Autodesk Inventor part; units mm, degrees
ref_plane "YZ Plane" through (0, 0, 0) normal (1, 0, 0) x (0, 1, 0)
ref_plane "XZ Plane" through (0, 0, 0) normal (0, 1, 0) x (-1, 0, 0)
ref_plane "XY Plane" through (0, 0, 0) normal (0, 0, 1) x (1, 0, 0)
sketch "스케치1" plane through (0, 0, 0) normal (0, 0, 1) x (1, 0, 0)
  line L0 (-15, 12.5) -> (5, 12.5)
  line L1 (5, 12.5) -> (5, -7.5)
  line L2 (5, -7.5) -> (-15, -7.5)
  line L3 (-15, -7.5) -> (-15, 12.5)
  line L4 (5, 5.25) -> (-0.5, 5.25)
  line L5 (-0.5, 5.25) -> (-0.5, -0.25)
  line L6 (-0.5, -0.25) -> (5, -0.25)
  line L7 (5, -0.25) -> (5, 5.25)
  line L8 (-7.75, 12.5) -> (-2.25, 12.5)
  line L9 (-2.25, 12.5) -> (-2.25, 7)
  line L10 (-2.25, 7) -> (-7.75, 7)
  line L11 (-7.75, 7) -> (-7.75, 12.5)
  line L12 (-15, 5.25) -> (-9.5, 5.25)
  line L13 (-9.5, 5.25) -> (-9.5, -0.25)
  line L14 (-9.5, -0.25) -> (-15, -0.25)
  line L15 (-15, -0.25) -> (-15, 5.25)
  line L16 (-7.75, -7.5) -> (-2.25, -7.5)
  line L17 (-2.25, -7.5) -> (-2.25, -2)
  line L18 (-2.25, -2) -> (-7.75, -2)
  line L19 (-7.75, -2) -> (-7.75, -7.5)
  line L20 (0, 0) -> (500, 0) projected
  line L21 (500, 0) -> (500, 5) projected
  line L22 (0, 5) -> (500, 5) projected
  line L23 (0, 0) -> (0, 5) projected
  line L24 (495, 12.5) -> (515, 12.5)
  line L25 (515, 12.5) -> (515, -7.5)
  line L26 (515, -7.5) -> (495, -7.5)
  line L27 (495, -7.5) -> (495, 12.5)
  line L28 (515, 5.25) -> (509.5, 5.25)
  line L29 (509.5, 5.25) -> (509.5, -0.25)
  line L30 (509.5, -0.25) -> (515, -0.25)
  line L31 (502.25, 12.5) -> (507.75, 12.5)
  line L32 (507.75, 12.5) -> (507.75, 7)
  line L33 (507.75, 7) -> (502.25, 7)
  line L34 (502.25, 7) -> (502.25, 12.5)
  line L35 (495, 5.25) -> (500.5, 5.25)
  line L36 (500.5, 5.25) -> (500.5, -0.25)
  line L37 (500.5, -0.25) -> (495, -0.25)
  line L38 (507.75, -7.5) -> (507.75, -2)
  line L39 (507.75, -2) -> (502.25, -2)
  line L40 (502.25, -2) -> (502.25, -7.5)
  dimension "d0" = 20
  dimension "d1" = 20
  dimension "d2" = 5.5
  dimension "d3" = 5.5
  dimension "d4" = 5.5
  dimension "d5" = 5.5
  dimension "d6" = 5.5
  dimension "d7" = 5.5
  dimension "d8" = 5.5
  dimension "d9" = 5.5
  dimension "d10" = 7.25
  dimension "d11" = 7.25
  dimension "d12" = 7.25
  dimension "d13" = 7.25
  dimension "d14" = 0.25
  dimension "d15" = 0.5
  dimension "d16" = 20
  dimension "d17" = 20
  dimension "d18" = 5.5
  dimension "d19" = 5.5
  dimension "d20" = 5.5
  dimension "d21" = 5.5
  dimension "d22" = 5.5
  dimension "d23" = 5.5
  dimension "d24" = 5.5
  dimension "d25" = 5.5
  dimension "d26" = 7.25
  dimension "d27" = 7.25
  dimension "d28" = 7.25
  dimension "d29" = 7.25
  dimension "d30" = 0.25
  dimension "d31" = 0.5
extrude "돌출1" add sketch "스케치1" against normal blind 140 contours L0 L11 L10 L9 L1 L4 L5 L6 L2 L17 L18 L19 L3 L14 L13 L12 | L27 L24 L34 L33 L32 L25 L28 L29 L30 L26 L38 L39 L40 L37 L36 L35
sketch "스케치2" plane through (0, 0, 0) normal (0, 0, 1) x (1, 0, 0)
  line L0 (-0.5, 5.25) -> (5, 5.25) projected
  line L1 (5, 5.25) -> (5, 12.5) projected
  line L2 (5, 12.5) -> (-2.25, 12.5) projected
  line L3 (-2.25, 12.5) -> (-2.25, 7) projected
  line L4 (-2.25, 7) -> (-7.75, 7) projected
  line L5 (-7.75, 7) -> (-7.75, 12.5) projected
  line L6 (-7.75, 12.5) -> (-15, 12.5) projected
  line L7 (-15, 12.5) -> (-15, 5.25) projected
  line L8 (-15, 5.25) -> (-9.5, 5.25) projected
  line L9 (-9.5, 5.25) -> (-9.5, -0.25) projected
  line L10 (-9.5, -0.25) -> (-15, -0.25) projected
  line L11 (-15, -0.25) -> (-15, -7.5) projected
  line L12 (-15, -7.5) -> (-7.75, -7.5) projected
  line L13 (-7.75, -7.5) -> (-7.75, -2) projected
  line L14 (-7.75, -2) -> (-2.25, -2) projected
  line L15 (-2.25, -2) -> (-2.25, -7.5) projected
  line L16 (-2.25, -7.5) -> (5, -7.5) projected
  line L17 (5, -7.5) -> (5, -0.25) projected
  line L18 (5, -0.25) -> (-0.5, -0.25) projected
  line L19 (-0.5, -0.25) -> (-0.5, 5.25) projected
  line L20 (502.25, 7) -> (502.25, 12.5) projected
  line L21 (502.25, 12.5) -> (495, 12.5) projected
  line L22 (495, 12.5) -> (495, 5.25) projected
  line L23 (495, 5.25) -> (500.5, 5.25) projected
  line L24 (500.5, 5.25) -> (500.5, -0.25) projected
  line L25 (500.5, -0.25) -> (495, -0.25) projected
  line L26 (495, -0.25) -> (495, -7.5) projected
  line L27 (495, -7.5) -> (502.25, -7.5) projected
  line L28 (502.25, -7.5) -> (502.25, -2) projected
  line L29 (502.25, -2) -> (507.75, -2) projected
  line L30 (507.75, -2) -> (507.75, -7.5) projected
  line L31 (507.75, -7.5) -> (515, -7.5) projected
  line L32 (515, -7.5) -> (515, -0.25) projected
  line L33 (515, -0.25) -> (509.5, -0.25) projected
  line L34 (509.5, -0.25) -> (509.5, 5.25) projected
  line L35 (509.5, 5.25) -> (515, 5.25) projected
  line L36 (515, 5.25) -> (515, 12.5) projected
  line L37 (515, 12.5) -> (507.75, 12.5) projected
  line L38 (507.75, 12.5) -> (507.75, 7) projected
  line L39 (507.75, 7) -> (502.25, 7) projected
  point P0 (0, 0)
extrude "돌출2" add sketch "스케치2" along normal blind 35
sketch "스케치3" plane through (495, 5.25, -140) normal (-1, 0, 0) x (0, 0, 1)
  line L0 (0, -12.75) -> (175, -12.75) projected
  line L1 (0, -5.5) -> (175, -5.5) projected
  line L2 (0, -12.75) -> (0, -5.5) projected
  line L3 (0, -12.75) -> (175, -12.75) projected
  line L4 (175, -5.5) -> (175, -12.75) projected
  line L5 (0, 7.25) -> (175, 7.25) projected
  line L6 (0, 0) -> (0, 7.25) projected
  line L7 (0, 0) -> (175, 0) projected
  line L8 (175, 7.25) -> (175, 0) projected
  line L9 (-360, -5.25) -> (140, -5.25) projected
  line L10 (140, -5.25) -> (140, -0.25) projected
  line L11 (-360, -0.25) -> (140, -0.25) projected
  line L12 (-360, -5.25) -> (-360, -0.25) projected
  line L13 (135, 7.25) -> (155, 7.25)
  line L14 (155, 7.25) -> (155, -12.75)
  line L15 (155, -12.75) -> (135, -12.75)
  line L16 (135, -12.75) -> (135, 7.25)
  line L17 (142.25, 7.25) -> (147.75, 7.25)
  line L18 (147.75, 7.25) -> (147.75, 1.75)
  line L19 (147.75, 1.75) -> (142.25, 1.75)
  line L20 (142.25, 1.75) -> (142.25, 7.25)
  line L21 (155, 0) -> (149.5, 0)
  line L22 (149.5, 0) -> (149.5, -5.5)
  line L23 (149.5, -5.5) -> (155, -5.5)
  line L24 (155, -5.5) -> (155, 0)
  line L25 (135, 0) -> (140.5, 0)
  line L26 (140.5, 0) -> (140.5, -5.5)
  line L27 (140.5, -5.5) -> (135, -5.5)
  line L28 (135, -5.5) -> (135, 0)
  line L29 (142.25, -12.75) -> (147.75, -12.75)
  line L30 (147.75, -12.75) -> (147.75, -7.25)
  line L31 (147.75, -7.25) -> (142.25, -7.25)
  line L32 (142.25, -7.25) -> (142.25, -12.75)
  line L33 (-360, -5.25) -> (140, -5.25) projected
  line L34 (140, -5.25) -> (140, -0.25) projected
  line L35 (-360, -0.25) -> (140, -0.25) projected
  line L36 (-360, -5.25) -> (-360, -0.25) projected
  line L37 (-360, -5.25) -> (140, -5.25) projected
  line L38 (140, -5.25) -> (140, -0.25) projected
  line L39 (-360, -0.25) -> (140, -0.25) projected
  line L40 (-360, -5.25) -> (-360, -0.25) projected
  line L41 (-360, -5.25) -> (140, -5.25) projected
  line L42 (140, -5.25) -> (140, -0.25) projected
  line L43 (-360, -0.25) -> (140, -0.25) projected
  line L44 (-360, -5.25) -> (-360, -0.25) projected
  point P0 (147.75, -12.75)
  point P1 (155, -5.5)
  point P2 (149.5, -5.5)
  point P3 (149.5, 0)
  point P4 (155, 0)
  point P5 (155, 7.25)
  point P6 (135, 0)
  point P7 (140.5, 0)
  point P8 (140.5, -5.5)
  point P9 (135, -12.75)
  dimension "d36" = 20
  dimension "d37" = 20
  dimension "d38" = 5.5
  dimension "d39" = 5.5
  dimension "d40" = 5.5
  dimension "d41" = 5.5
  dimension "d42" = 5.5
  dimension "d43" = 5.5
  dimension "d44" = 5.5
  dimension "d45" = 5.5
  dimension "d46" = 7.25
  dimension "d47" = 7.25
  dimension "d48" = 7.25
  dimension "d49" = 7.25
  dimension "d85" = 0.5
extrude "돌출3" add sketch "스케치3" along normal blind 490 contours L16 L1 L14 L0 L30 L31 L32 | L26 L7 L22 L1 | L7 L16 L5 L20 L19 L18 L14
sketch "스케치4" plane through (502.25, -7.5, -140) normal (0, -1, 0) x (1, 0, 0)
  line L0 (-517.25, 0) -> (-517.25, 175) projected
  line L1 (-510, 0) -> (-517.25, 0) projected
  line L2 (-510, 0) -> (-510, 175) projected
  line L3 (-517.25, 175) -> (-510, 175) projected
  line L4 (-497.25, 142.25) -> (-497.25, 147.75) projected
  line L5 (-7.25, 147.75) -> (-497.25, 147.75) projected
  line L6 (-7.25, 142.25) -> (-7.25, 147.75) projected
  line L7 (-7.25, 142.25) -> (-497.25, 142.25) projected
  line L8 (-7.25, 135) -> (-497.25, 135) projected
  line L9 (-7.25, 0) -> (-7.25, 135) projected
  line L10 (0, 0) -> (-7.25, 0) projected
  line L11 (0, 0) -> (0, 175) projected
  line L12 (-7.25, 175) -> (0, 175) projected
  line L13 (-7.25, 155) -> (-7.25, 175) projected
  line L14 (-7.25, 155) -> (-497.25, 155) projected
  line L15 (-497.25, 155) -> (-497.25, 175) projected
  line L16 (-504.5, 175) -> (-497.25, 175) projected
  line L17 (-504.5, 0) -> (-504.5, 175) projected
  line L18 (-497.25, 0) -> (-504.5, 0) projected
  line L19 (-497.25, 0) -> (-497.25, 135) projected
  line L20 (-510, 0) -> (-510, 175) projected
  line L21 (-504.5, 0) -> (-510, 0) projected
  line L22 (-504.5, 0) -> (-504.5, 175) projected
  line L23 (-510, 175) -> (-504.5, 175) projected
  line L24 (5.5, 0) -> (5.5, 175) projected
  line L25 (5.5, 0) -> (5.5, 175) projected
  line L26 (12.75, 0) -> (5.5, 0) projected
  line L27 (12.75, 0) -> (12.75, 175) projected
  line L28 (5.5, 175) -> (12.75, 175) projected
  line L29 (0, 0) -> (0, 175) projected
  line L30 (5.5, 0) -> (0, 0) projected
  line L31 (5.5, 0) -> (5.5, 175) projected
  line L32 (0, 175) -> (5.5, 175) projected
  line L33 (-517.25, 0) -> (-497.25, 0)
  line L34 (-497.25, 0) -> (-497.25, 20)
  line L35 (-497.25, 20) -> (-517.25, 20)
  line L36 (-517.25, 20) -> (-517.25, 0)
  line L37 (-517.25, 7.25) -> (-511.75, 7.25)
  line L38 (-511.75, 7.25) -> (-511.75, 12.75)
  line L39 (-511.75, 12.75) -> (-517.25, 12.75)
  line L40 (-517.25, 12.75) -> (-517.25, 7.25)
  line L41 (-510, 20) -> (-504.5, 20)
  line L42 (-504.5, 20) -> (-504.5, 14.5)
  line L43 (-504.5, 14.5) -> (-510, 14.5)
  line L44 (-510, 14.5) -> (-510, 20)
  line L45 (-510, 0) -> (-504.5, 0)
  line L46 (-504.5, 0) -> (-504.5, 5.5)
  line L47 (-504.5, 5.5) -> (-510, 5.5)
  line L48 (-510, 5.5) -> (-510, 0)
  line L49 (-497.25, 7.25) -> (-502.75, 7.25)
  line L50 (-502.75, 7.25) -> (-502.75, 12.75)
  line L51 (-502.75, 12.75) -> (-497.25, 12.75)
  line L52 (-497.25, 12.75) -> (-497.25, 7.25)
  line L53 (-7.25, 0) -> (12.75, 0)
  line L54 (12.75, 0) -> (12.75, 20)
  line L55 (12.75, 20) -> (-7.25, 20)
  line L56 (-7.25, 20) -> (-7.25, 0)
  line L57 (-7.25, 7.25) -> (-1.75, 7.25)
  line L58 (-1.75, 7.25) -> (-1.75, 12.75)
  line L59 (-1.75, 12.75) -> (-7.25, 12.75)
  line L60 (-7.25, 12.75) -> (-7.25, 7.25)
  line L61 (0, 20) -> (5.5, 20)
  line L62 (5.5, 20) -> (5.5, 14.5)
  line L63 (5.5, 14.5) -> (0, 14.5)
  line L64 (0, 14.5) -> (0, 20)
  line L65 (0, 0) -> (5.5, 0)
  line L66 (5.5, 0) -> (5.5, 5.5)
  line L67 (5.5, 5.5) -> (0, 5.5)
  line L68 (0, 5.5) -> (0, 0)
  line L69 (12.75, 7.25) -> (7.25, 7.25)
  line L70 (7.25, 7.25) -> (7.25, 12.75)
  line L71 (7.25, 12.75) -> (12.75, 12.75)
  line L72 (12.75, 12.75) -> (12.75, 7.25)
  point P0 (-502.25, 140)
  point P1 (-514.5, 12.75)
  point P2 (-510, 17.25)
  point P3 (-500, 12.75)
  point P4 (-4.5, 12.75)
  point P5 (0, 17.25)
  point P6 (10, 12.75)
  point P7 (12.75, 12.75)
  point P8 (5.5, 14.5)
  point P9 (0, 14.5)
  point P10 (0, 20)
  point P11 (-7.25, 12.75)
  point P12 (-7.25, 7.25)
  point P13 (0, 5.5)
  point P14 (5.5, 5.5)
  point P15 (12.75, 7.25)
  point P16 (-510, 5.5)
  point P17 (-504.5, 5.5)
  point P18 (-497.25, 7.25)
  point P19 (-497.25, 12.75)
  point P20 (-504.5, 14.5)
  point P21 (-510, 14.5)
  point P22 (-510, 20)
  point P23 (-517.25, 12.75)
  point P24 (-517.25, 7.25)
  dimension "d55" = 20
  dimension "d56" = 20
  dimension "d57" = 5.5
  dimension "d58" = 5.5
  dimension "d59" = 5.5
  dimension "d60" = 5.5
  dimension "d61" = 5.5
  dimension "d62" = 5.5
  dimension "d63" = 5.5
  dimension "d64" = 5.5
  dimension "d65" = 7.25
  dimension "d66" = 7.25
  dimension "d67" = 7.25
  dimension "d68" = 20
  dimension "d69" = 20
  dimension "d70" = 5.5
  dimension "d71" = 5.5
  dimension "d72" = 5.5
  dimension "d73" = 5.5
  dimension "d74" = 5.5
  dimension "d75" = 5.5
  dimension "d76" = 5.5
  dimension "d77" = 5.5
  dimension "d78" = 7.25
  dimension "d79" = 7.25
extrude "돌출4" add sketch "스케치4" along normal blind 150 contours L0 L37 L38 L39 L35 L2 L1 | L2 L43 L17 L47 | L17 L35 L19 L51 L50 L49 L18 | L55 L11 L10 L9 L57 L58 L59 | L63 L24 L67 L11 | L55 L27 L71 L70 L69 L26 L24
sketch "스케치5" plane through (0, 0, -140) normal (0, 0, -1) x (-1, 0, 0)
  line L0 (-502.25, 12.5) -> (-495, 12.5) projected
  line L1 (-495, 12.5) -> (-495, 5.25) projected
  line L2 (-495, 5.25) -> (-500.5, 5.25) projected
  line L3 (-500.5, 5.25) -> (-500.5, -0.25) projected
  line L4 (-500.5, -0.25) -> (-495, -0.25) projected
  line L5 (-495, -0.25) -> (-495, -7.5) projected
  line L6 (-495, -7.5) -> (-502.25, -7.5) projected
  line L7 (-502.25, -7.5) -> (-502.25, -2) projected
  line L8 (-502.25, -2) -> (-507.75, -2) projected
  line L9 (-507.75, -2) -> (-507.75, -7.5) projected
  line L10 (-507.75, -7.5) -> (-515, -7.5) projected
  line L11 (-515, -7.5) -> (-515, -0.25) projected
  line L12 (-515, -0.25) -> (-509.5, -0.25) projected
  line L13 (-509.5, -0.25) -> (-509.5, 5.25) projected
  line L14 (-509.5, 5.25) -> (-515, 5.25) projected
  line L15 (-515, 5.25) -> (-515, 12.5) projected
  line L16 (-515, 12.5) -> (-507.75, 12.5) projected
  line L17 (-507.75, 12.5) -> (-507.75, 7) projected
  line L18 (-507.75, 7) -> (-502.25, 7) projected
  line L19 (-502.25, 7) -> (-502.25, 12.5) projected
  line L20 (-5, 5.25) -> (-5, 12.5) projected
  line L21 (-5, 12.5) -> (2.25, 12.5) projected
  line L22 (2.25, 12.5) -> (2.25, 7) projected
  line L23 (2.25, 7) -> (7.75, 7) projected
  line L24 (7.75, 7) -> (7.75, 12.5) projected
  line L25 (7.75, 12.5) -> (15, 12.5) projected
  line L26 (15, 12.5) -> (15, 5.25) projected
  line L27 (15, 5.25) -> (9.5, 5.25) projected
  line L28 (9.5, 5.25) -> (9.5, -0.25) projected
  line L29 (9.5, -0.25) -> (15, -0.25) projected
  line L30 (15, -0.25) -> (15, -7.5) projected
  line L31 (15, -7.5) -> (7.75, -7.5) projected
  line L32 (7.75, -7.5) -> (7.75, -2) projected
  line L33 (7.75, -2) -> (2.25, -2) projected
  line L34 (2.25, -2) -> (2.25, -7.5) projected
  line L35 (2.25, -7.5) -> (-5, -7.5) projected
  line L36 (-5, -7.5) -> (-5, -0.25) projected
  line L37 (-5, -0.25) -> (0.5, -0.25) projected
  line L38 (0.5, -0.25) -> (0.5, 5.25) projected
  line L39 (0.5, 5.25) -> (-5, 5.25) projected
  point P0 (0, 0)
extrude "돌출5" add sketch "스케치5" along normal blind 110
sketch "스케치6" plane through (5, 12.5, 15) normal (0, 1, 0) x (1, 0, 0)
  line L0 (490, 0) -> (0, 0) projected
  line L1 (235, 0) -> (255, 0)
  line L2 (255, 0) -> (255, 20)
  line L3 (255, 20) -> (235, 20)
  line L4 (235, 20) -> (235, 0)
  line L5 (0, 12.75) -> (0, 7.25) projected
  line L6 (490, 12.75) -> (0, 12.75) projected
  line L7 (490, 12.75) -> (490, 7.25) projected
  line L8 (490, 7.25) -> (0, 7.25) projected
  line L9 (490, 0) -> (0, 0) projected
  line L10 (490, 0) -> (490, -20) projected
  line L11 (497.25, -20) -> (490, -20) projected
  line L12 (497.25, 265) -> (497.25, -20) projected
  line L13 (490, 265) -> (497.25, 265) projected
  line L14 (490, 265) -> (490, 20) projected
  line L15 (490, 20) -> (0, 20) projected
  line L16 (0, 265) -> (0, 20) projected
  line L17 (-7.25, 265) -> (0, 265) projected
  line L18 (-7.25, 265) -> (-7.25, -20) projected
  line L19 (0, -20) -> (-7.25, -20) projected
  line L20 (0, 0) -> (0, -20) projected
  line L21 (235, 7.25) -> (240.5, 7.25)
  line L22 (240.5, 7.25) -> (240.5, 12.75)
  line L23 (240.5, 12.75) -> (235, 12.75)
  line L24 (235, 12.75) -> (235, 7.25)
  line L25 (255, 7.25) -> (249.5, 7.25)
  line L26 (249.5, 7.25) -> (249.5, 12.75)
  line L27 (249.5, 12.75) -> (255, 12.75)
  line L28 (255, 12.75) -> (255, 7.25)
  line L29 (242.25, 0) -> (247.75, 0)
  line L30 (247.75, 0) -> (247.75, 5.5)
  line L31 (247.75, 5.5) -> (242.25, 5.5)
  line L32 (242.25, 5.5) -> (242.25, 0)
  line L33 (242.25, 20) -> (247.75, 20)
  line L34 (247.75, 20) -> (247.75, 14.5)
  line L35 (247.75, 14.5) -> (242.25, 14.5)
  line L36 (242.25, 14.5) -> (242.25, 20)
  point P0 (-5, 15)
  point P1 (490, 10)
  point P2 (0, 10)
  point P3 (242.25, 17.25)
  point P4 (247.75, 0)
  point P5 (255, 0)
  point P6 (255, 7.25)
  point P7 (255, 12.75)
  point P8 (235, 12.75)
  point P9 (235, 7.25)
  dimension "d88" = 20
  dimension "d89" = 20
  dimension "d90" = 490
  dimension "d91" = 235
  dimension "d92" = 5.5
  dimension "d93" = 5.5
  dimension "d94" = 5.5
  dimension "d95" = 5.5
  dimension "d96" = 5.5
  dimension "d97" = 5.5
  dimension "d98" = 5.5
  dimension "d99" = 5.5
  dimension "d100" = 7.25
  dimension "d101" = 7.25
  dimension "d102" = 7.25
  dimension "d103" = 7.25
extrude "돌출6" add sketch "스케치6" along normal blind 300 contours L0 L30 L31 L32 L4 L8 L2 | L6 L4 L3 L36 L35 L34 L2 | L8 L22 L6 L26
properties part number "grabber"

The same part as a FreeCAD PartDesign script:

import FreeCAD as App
import Part
import Sketcher


def add_polygon(sketch, points):
    """Adds a closed chain of lines whose ends are joined by coincident constraints."""
    first, n = sketch.GeometryCount, len(points)
    for a, b in zip(points, points[1:] + points[:1]):
        sketch.addGeometry(Part.LineSegment(App.Vector(*a, 0), App.Vector(*b, 0)), False)
    for i in range(n):
        sketch.addConstraint(Sketcher.Constraint("Coincident", first + i, 2, first + (i + 1) % n, 1))

doc = App.newDocument("Part")
body = doc.addObject("PartDesign::Body", "Body")
body.AllowCompound = True

# Sketch on XY plane
sketch1 = doc.addObject("Sketcher::SketchObject", "Sketch")
body.addObject(sketch1)
sketch1.AttachmentSupport = (doc.XY_Plane, [""])
sketch1.MapMode = "FlatFace"
add_polygon(sketch1, [(-7.75, 12.5), (-15, 12.5), (-15, 5.25), (-9.5, 5.25), (-9.5, -0.25), (-15, -0.25), (-15, -7.5), (-7.75, -7.5), (-7.75, -2), (-2.25, -2), (-2.25, -7.5), (5, -7.5), (5, -0.25), (-0.5, -0.25), (-0.5, 5.25), (5, 5.25), (5, 12.5), (-2.25, 12.5), (-2.25, 7), (-7.75, 7)])  # lines 0-19
add_polygon(sketch1, [(495, 12.5), (495, 5.25), (500.5, 5.25), (500.5, -0.25), (495, -0.25), (495, -7.5), (502.25, -7.5), (502.25, -2), (507.75, -2), (507.75, -7.5), (515, -7.5), (515, -0.25), (509.5, -0.25), (509.5, 5.25), (515, 5.25), (515, 12.5), (507.75, 12.5), (507.75, 7), (502.25, 7), (502.25, 12.5)])  # lines 20-39
sketch1.addConstraint(Sketcher.Constraint("Horizontal", 0))
sketch1.addConstraint(Sketcher.Constraint("Vertical", 1))
sketch1.addConstraint(Sketcher.Constraint("Horizontal", 2))
sketch1.addConstraint(Sketcher.Constraint("Vertical", 3))
sketch1.addConstraint(Sketcher.Constraint("Horizontal", 4))
sketch1.addConstraint(Sketcher.Constraint("Vertical", 5))
sketch1.addConstraint(Sketcher.Constraint("Horizontal", 6))
sketch1.addConstraint(Sketcher.Constraint("Vertical", 7))
sketch1.addConstraint(Sketcher.Constraint("Horizontal", 8))
sketch1.addConstraint(Sketcher.Constraint("Vertical", 9))
sketch1.addConstraint(Sketcher.Constraint("Horizontal", 10))
sketch1.addConstraint(Sketcher.Constraint("Vertical", 11))
sketch1.addConstraint(Sketcher.Constraint("Horizontal", 12))
sketch1.addConstraint(Sketcher.Constraint("Vertical", 13))
sketch1.addConstraint(Sketcher.Constraint("Horizontal", 14))
sketch1.addConstraint(Sketcher.Constraint("Vertical", 15))
sketch1.addConstraint(Sketcher.Constraint("Horizontal", 16))
sketch1.addConstraint(Sketcher.Constraint("Vertical", 17))
sketch1.addConstraint(Sketcher.Constraint("Horizontal", 18))
sketch1.addConstraint(Sketcher.Constraint("Vertical", 19))
sketch1.addConstraint(Sketcher.Constraint("Vertical", 20))
sketch1.addConstraint(Sketcher.Constraint("Horizontal", 21))
sketch1.addConstraint(Sketcher.Constraint("Vertical", 22))
sketch1.addConstraint(Sketcher.Constraint("Horizontal", 23))
sketch1.addConstraint(Sketcher.Constraint("Vertical", 24))
sketch1.addConstraint(Sketcher.Constraint("Horizontal", 25))
sketch1.addConstraint(Sketcher.Constraint("Vertical", 26))
sketch1.addConstraint(Sketcher.Constraint("Horizontal", 27))
sketch1.addConstraint(Sketcher.Constraint("Vertical", 28))
sketch1.addConstraint(Sketcher.Constraint("Horizontal", 29))
sketch1.addConstraint(Sketcher.Constraint("Vertical", 30))
sketch1.addConstraint(Sketcher.Constraint("Horizontal", 31))
sketch1.addConstraint(Sketcher.Constraint("Vertical", 32))
sketch1.addConstraint(Sketcher.Constraint("Horizontal", 33))
sketch1.addConstraint(Sketcher.Constraint("Vertical", 34))
sketch1.addConstraint(Sketcher.Constraint("Horizontal", 35))
sketch1.addConstraint(Sketcher.Constraint("Vertical", 36))
sketch1.addConstraint(Sketcher.Constraint("Horizontal", 37))
sketch1.addConstraint(Sketcher.Constraint("Vertical", 38))
sketch1.addConstraint(Sketcher.Constraint("Horizontal", 39))
sketch1.addConstraint(Sketcher.Constraint("Horizontal", 6, 2, 9, 2))
sketch1.addConstraint(Sketcher.Constraint("Horizontal", 4, 2, 11, 2))
sketch1.addConstraint(Sketcher.Constraint("Horizontal", 2, 2, 13, 2))
sketch1.addConstraint(Sketcher.Constraint("Horizontal", 0, 2, 15, 2))
sketch1.addConstraint(Sketcher.Constraint("Horizontal", 14, 2, 20, 2))
sketch1.addConstraint(Sketcher.Constraint("Horizontal", 12, 2, 22, 2))
sketch1.addConstraint(Sketcher.Constraint("Horizontal", 10, 2, 24, 2))
sketch1.addConstraint(Sketcher.Constraint("Horizontal", 8, 2, 26, 2))
sketch1.addConstraint(Sketcher.Constraint("Horizontal", 25, 2, 28, 2))
sketch1.addConstraint(Sketcher.Constraint("Horizontal", 23, 2, 30, 2))
sketch1.addConstraint(Sketcher.Constraint("Horizontal", 21, 2, 32, 2))
sketch1.addConstraint(Sketcher.Constraint("Horizontal", 19, 2, 34, 2))
sketch1.addConstraint(Sketcher.Constraint("Horizontal", 18, 2, 36, 2))
sketch1.addConstraint(Sketcher.Constraint("Horizontal", 35, 2, 38, 2))
sketch1.addConstraint(Sketcher.Constraint("Vertical", 1, 2, 4, 2))
sketch1.addConstraint(Sketcher.Constraint("Vertical", 11, 2, 14, 2))
sketch1.addConstraint(Sketcher.Constraint("Vertical", 9, 2, 16, 2))
sketch1.addConstraint(Sketcher.Constraint("Vertical", 7, 2, 18, 2))
sketch1.addConstraint(Sketcher.Constraint("Vertical", 20, 2, 23, 2))
sketch1.addConstraint(Sketcher.Constraint("Vertical", 30, 2, 33, 2))
sketch1.addConstraint(Sketcher.Constraint("Vertical", 28, 2, 35, 2))
sketch1.addConstraint(Sketcher.Constraint("Vertical", 26, 2, 37, 2))
sketch1.addConstraint(Sketcher.Constraint("Equal", 4, 8))
sketch1.addConstraint(Sketcher.Constraint("Equal", 6, 10))
sketch1.addConstraint(Sketcher.Constraint("Equal", 8, 12))
sketch1.addConstraint(Sketcher.Constraint("Equal", 18, 21))
sketch1.addConstraint(Sketcher.Constraint("Equal", 16, 25))
sketch1.addConstraint(Sketcher.Constraint("Equal", 23, 27))
sketch1.addConstraint(Sketcher.Constraint("Equal", 25, 29))
sketch1.addConstraint(Sketcher.Constraint("Equal", 27, 31))
sketch1.addConstraint(Sketcher.Constraint("Equal", 39, 1))
sketch1.addConstraint(Sketcher.Constraint("Equal", 37, 3))
sketch1.addConstraint(Sketcher.Constraint("Equal", 1, 5))
sketch1.addConstraint(Sketcher.Constraint("Equal", 3, 7))
sketch1.addConstraint(Sketcher.Constraint("Equal", 13, 17))
sketch1.addConstraint(Sketcher.Constraint("DistanceX", 2, 1, 2, 2, 5.5))
sketch1.addConstraint(Sketcher.Constraint("DistanceY", 5, 2, 0, 2, 20.0))
sketch1.addConstraint(Sketcher.Constraint("DistanceX", 12, 2, -1, 1, 0.5))
sketch1.addConstraint(Sketcher.Constraint("DistanceY", 3, 2, -1, 1, 0.25))
sketch1.addConstraint(Sketcher.Constraint("DistanceX", -1, 1, 20, 2, 495.0))
pad1 = doc.addObject("PartDesign::Pad", "Pad")
body.addObject(pad1)
pad1.Profile = sketch1
pad1.Length = 140
pad1.Reversed = True

# Sketch on XY plane
sketch2 = doc.addObject("Sketcher::SketchObject", "Sketch001")
body.addObject(sketch2)
sketch2.AttachmentSupport = (doc.XY_Plane, [""])
sketch2.MapMode = "FlatFace"
add_polygon(sketch2, [(-0.5, -0.25), (-0.5, 5.25), (5, 5.25), (5, 12.5), (-2.25, 12.5), (-2.25, 7), (-7.75, 7), (-7.75, 12.5), (-15, 12.5), (-15, 5.25), (-9.5, 5.25), (-9.5, -0.25), (-15, -0.25), (-15, -7.5), (-7.75, -7.5), (-7.75, -2), (-2.25, -2), (-2.25, -7.5), (5, -7.5), (5, -0.25)])  # lines 0-19
add_polygon(sketch2, [(507.75, 7), (502.25, 7), (502.25, 12.5), (495, 12.5), (495, 5.25), (500.5, 5.25), (500.5, -0.25), (495, -0.25), (495, -7.5), (502.25, -7.5), (502.25, -2), (507.75, -2), (507.75, -7.5), (515, -7.5), (515, -0.25), (509.5, -0.25), (509.5, 5.25), (515, 5.25), (515, 12.5), (507.75, 12.5)])  # lines 20-39
sketch2.addConstraint(Sketcher.Constraint("Vertical", 0))
sketch2.addConstraint(Sketcher.Constraint("Horizontal", 1))
sketch2.addConstraint(Sketcher.Constraint("Vertical", 2))
sketch2.addConstraint(Sketcher.Constraint("Horizontal", 3))
sketch2.addConstraint(Sketcher.Constraint("Vertical", 4))
sketch2.addConstraint(Sketcher.Constraint("Horizontal", 5))
sketch2.addConstraint(Sketcher.Constraint("Vertical", 6))
sketch2.addConstraint(Sketcher.Constraint("Horizontal", 7))
sketch2.addConstraint(Sketcher.Constraint("Vertical", 8))
sketch2.addConstraint(Sketcher.Constraint("Horizontal", 9))
sketch2.addConstraint(Sketcher.Constraint("Vertical", 10))
sketch2.addConstraint(Sketcher.Constraint("Horizontal", 11))
sketch2.addConstraint(Sketcher.Constraint("Vertical", 12))
sketch2.addConstraint(Sketcher.Constraint("Horizontal", 13))
sketch2.addConstraint(Sketcher.Constraint("Vertical", 14))
sketch2.addConstraint(Sketcher.Constraint("Horizontal", 15))
sketch2.addConstraint(Sketcher.Constraint("Vertical", 16))
sketch2.addConstraint(Sketcher.Constraint("Horizontal", 17))
sketch2.addConstraint(Sketcher.Constraint("Vertical", 18))
sketch2.addConstraint(Sketcher.Constraint("Horizontal", 19))
sketch2.addConstraint(Sketcher.Constraint("Horizontal", 20))
sketch2.addConstraint(Sketcher.Constraint("Vertical", 21))
sketch2.addConstraint(Sketcher.Constraint("Horizontal", 22))
sketch2.addConstraint(Sketcher.Constraint("Vertical", 23))
sketch2.addConstraint(Sketcher.Constraint("Horizontal", 24))
sketch2.addConstraint(Sketcher.Constraint("Vertical", 25))
sketch2.addConstraint(Sketcher.Constraint("Horizontal", 26))
sketch2.addConstraint(Sketcher.Constraint("Vertical", 27))
sketch2.addConstraint(Sketcher.Constraint("Horizontal", 28))
sketch2.addConstraint(Sketcher.Constraint("Vertical", 29))
sketch2.addConstraint(Sketcher.Constraint("Horizontal", 30))
sketch2.addConstraint(Sketcher.Constraint("Vertical", 31))
sketch2.addConstraint(Sketcher.Constraint("Horizontal", 32))
sketch2.addConstraint(Sketcher.Constraint("Vertical", 33))
sketch2.addConstraint(Sketcher.Constraint("Horizontal", 34))
sketch2.addConstraint(Sketcher.Constraint("Vertical", 35))
sketch2.addConstraint(Sketcher.Constraint("Horizontal", 36))
sketch2.addConstraint(Sketcher.Constraint("Vertical", 37))
sketch2.addConstraint(Sketcher.Constraint("Horizontal", 38))
sketch2.addConstraint(Sketcher.Constraint("Vertical", 39))
sketch2.addConstraint(Sketcher.Constraint("Horizontal", 3, 2, 6, 2))
sketch2.addConstraint(Sketcher.Constraint("Horizontal", 1, 2, 8, 2))
sketch2.addConstraint(Sketcher.Constraint("Horizontal", 13, 2, 16, 2))
sketch2.addConstraint(Sketcher.Constraint("Horizontal", 11, 2, 18, 2))
sketch2.addConstraint(Sketcher.Constraint("Horizontal", 5, 2, 20, 2))
sketch2.addConstraint(Sketcher.Constraint("Horizontal", 7, 2, 21, 2))
sketch2.addConstraint(Sketcher.Constraint("Horizontal", 9, 2, 23, 2))
sketch2.addConstraint(Sketcher.Constraint("Horizontal", 19, 2, 25, 2))
sketch2.addConstraint(Sketcher.Constraint("Horizontal", 17, 2, 27, 2))
sketch2.addConstraint(Sketcher.Constraint("Horizontal", 15, 2, 29, 2))
sketch2.addConstraint(Sketcher.Constraint("Horizontal", 28, 2, 31, 2))
sketch2.addConstraint(Sketcher.Constraint("Horizontal", 26, 2, 33, 2))
sketch2.addConstraint(Sketcher.Constraint("Horizontal", 24, 2, 35, 2))
sketch2.addConstraint(Sketcher.Constraint("Horizontal", 22, 2, 37, 2))
sketch2.addConstraint(Sketcher.Constraint("Vertical", 8, 2, 11, 2))
sketch2.addConstraint(Sketcher.Constraint("Vertical", 6, 2, 13, 2))
sketch2.addConstraint(Sketcher.Constraint("Vertical", 4, 2, 15, 2))
sketch2.addConstraint(Sketcher.Constraint("Vertical", 2, 2, 17, 2))
sketch2.addConstraint(Sketcher.Constraint("Vertical", 23, 2, 26, 2))
sketch2.addConstraint(Sketcher.Constraint("Vertical", 21, 2, 28, 2))
sketch2.addConstraint(Sketcher.Constraint("Vertical", 33, 2, 36, 2))
sketch2.addConstraint(Sketcher.Constraint("Vertical", 31, 2, 38, 2))
sketch2.addConstraint(Sketcher.Constraint("Equal", 1, 5))
sketch2.addConstraint(Sketcher.Constraint("Equal", 3, 7))
sketch2.addConstraint(Sketcher.Constraint("Equal", 5, 9))
sketch2.addConstraint(Sketcher.Constraint("Equal", 19, 20))
sketch2.addConstraint(Sketcher.Constraint("Equal", 17, 22))
sketch2.addConstraint(Sketcher.Constraint("Equal", 20, 24))
sketch2.addConstraint(Sketcher.Constraint("Equal", 28, 32))
sketch2.addConstraint(Sketcher.Constraint("Equal", 30, 34))
sketch2.addConstraint(Sketcher.Constraint("Equal", 36, 0))
sketch2.addConstraint(Sketcher.Constraint("Equal", 38, 2))
sketch2.addConstraint(Sketcher.Constraint("Equal", 0, 4))
sketch2.addConstraint(Sketcher.Constraint("Equal", 8, 12))
sketch2.addConstraint(Sketcher.Constraint("Equal", 10, 14))
sketch2.addConstraint(Sketcher.Constraint("DistanceX", 1, 1, 1, 2, 5.5))
sketch2.addConstraint(Sketcher.Constraint("DistanceX", -1, 1, 1, 2, 5.0))
sketch2.addConstraint(Sketcher.Constraint("DistanceY", -1, 1, 4, 2, 7.0))
sketch2.addConstraint(Sketcher.Constraint("DistanceX", 7, 2, -1, 1, 15.0))
sketch2.addConstraint(Sketcher.Constraint("DistanceX", -1, 1, 22, 2, 495.0))
pad2 = doc.addObject("PartDesign::Pad", "Pad001")
body.addObject(pad2)
pad2.Profile = sketch2
pad2.Length = 35

# Sketch on YZ plane
sketch3 = doc.addObject("Sketcher::SketchObject", "Sketch002")
body.addObject(sketch3)
sketch3.AttachmentSupport = (doc.YZ_Plane, [""])
sketch3.MapMode = "FlatFace"
sketch3.AttachmentOffset = App.Placement(App.Vector(0, 0, 495), App.Rotation())
add_polygon(sketch3, [(-0.25, -5), (-7.5, -5), (-7.5, 2.25), (-2, 2.25), (-2, 7.75), (-7.5, 7.75), (-7.5, 15), (-0.25, 15), (-0.25, 9.5), (5.25, 9.5), (5.25, 15), (12.5, 15), (12.5, 7.75), (7, 7.75), (7, 2.25), (12.5, 2.25), (12.5, -5), (5.25, -5), (5.25, 0.5), (-0.25, 0.5)])  # lines 0-19
sketch3.addConstraint(Sketcher.Constraint("Horizontal", 0))
sketch3.addConstraint(Sketcher.Constraint("Vertical", 1))
sketch3.addConstraint(Sketcher.Constraint("Horizontal", 2))
sketch3.addConstraint(Sketcher.Constraint("Vertical", 3))
sketch3.addConstraint(Sketcher.Constraint("Horizontal", 4))
sketch3.addConstraint(Sketcher.Constraint("Vertical", 5))
sketch3.addConstraint(Sketcher.Constraint("Horizontal", 6))
sketch3.addConstraint(Sketcher.Constraint("Vertical", 7))
sketch3.addConstraint(Sketcher.Constraint("Horizontal", 8))
sketch3.addConstraint(Sketcher.Constraint("Vertical", 9))
sketch3.addConstraint(Sketcher.Constraint("Horizontal", 10))
sketch3.addConstraint(Sketcher.Constraint("Vertical", 11))
sketch3.addConstraint(Sketcher.Constraint("Horizontal", 12))
sketch3.addConstraint(Sketcher.Constraint("Vertical", 13))
sketch3.addConstraint(Sketcher.Constraint("Horizontal", 14))
sketch3.addConstraint(Sketcher.Constraint("Vertical", 15))
sketch3.addConstraint(Sketcher.Constraint("Horizontal", 16))
sketch3.addConstraint(Sketcher.Constraint("Vertical", 17))
sketch3.addConstraint(Sketcher.Constraint("Horizontal", 18))
sketch3.addConstraint(Sketcher.Constraint("Vertical", 19))
sketch3.addConstraint(Sketcher.Constraint("Horizontal", 6, 2, 9, 2))
sketch3.addConstraint(Sketcher.Constraint("Horizontal", 4, 2, 11, 2))
sketch3.addConstraint(Sketcher.Constraint("Horizontal", 2, 2, 13, 2))
sketch3.addConstraint(Sketcher.Constraint("Horizontal", 0, 2, 15, 2))
sketch3.addConstraint(Sketcher.Constraint("Vertical", 1, 2, 4, 2))
sketch3.addConstraint(Sketcher.Constraint("Vertical", 11, 2, 14, 2))
sketch3.addConstraint(Sketcher.Constraint("Vertical", 9, 2, 16, 2))
sketch3.addConstraint(Sketcher.Constraint("Vertical", 7, 2, 18, 2))
sketch3.addConstraint(Sketcher.Constraint("Equal", 4, 8))
sketch3.addConstraint(Sketcher.Constraint("Equal", 6, 10))
sketch3.addConstraint(Sketcher.Constraint("Equal", 8, 12))
sketch3.addConstraint(Sketcher.Constraint("Equal", 16, 1))
sketch3.addConstraint(Sketcher.Constraint("Equal", 18, 3))
sketch3.addConstraint(Sketcher.Constraint("Equal", 1, 5))
sketch3.addConstraint(Sketcher.Constraint("Equal", 3, 7))
sketch3.addConstraint(Sketcher.Constraint("Equal", 13, 17))
sketch3.addConstraint(Sketcher.Constraint("DistanceX", 2, 1, 2, 2, 5.5))
sketch3.addConstraint(Sketcher.Constraint("DistanceY", 0, 2, 5, 2, 20.0))
sketch3.addConstraint(Sketcher.Constraint("DistanceY", -1, 1, 17, 2, 0.5))
sketch3.addConstraint(Sketcher.Constraint("DistanceX", 2, 2, -1, 1, 2.0))
pad3 = doc.addObject("PartDesign::Pad", "Pad002")
body.addObject(pad3)
pad3.Profile = sketch3
pad3.Length = 490
pad3.Reversed = True

# Sketch on XZ plane
sketch4 = doc.addObject("Sketcher::SketchObject", "Sketch003")
body.addObject(sketch4)
sketch4.AttachmentSupport = (doc.XZ_Plane, [""])
sketch4.MapMode = "FlatFace"
sketch4.AttachmentOffset = App.Placement(App.Vector(0, 0, 7.5), App.Rotation())
add_polygon(sketch4, [(-15, -132.75), (-15, -140), (-7.75, -140), (-7.75, -134.5), (-2.25, -134.5), (-2.25, -140), (5, -140), (5, -132.75), (-0.5, -132.75), (-0.5, -127.25), (5, -127.25), (5, -120), (-2.25, -120), (-2.25, -125.5), (-7.75, -125.5), (-7.75, -120), (-15, -120), (-15, -127.25), (-9.5, -127.25), (-9.5, -132.75)])  # lines 0-19
add_polygon(sketch4, [(502.25, -120), (495, -120), (495, -127.25), (500.5, -127.25), (500.5, -132.75), (495, -132.75), (495, -140), (502.25, -140), (502.25, -134.5), (507.75, -134.5), (507.75, -140), (515, -140), (515, -132.75), (509.5, -132.75), (509.5, -127.25), (515, -127.25), (515, -120), (507.75, -120), (507.75, -125.5), (502.25, -125.5)])  # lines 20-39
sketch4.addConstraint(Sketcher.Constraint("Vertical", 0))
sketch4.addConstraint(Sketcher.Constraint("Horizontal", 1))
sketch4.addConstraint(Sketcher.Constraint("Vertical", 2))
sketch4.addConstraint(Sketcher.Constraint("Horizontal", 3))
sketch4.addConstraint(Sketcher.Constraint("Vertical", 4))
sketch4.addConstraint(Sketcher.Constraint("Horizontal", 5))
sketch4.addConstraint(Sketcher.Constraint("Vertical", 6))
sketch4.addConstraint(Sketcher.Constraint("Horizontal", 7))
sketch4.addConstraint(Sketcher.Constraint("Vertical", 8))
sketch4.addConstraint(Sketcher.Constraint("Horizontal", 9))
sketch4.addConstraint(Sketcher.Constraint("Vertical", 10))
sketch4.addConstraint(Sketcher.Constraint("Horizontal", 11))
sketch4.addConstraint(Sketcher.Constraint("Vertical", 12))
sketch4.addConstraint(Sketcher.Constraint("Horizontal", 13))
sketch4.addConstraint(Sketcher.Constraint("Vertical", 14))
sketch4.addConstraint(Sketcher.Constraint("Horizontal", 15))
sketch4.addConstraint(Sketcher.Constraint("Vertical", 16))
sketch4.addConstraint(Sketcher.Constraint("Horizontal", 17))
sketch4.addConstraint(Sketcher.Constraint("Vertical", 18))
sketch4.addConstraint(Sketcher.Constraint("Horizontal", 19))
sketch4.addConstraint(Sketcher.Constraint("Horizontal", 20))
sketch4.addConstraint(Sketcher.Constraint("Vertical", 21))
sketch4.addConstraint(Sketcher.Constraint("Horizontal", 22))
sketch4.addConstraint(Sketcher.Constraint("Vertical", 23))
sketch4.addConstraint(Sketcher.Constraint("Horizontal", 24))
sketch4.addConstraint(Sketcher.Constraint("Vertical", 25))
sketch4.addConstraint(Sketcher.Constraint("Horizontal", 26))
sketch4.addConstraint(Sketcher.Constraint("Vertical", 27))
sketch4.addConstraint(Sketcher.Constraint("Horizontal", 28))
sketch4.addConstraint(Sketcher.Constraint("Vertical", 29))
sketch4.addConstraint(Sketcher.Constraint("Horizontal", 30))
sketch4.addConstraint(Sketcher.Constraint("Vertical", 31))
sketch4.addConstraint(Sketcher.Constraint("Horizontal", 32))
sketch4.addConstraint(Sketcher.Constraint("Vertical", 33))
sketch4.addConstraint(Sketcher.Constraint("Horizontal", 34))
sketch4.addConstraint(Sketcher.Constraint("Vertical", 35))
sketch4.addConstraint(Sketcher.Constraint("Horizontal", 36))
sketch4.addConstraint(Sketcher.Constraint("Vertical", 37))
sketch4.addConstraint(Sketcher.Constraint("Horizontal", 38))
sketch4.addConstraint(Sketcher.Constraint("Vertical", 39))
sketch4.addConstraint(Sketcher.Constraint("Horizontal", 1, 2, 4, 2))
sketch4.addConstraint(Sketcher.Constraint("Horizontal", 11, 2, 14, 2))
sketch4.addConstraint(Sketcher.Constraint("Horizontal", 9, 2, 16, 2))
sketch4.addConstraint(Sketcher.Constraint("Horizontal", 7, 2, 18, 2))
sketch4.addConstraint(Sketcher.Constraint("Horizontal", 15, 2, 20, 2))
sketch4.addConstraint(Sketcher.Constraint("Horizontal", 17, 2, 21, 2))
sketch4.addConstraint(Sketcher.Constraint("Horizontal", 19, 2, 23, 2))
sketch4.addConstraint(Sketcher.Constraint("Horizontal", 5, 2, 25, 2))
sketch4.addConstraint(Sketcher.Constraint("Horizontal", 3, 2, 27, 2))
sketch4.addConstraint(Sketcher.Constraint("Horizontal", 26, 2, 29, 2))
sketch4.addConstraint(Sketcher.Constraint("Horizontal", 24, 2, 31, 2))
sketch4.addConstraint(Sketcher.Constraint("Horizontal", 22, 2, 33, 2))
sketch4.addConstraint(Sketcher.Constraint("Horizontal", 20, 2, 35, 2))
sketch4.addConstraint(Sketcher.Constraint("Horizontal", 13, 2, 37, 2))
sketch4.addConstraint(Sketcher.Constraint("Vertical", 6, 2, 9, 2))
sketch4.addConstraint(Sketcher.Constraint("Vertical", 4, 2, 11, 2))
sketch4.addConstraint(Sketcher.Constraint("Vertical", 2, 2, 13, 2))
sketch4.addConstraint(Sketcher.Constraint("Vertical", 0, 2, 15, 2))
sketch4.addConstraint(Sketcher.Constraint("Vertical", 21, 2, 24, 2))
sketch4.addConstraint(Sketcher.Constraint("Vertical", 31, 2, 34, 2))
sketch4.addConstraint(Sketcher.Constraint("Vertical", 29, 2, 36, 2))
sketch4.addConstraint(Sketcher.Constraint("Vertical", 27, 2, 38, 2))
sketch4.addConstraint(Sketcher.Constraint("Equal", 1, 5))
sketch4.addConstraint(Sketcher.Constraint("Equal", 3, 7))
sketch4.addConstraint(Sketcher.Constraint("Equal", 13, 17))
sketch4.addConstraint(Sketcher.Constraint("Equal", 15, 20))
sketch4.addConstraint(Sketcher.Constraint("Equal", 19, 22))
sketch4.addConstraint(Sketcher.Constraint("Equal", 24, 28))
sketch4.addConstraint(Sketcher.Constraint("Equal", 26, 30))
sketch4.addConstraint(Sketcher.Constraint("Equal", 28, 32))
sketch4.addConstraint(Sketcher.Constraint("Equal", 36, 0))
sketch4.addConstraint(Sketcher.Constraint("Equal", 38, 2))
sketch4.addConstraint(Sketcher.Constraint("Equal", 4, 8))
sketch4.addConstraint(Sketcher.Constraint("Equal", 6, 10))
sketch4.addConstraint(Sketcher.Constraint("Equal", 8, 12))
sketch4.addConstraint(Sketcher.Constraint("DistanceX", 3, 1, 3, 2, 5.5))
sketch4.addConstraint(Sketcher.Constraint("DistanceX", 0, 2, 5, 2, 20.0))
sketch4.addConstraint(Sketcher.Constraint("DistanceX", 0, 2, -1, 1, 15.0))
sketch4.addConstraint(Sketcher.Constraint("DistanceY", 0, 2, -1, 1, 140.0))
sketch4.addConstraint(Sketcher.Constraint("DistanceX", -1, 1, 20, 2, 495.0))
pad4 = doc.addObject("PartDesign::Pad", "Pad003")
body.addObject(pad4)
pad4.Profile = sketch4
pad4.Length = 150

# Sketch on XY plane
sketch5 = doc.addObject("Sketcher::SketchObject", "Sketch004")
body.addObject(sketch5)
sketch5.AttachmentSupport = (doc.XY_Plane, [""])
sketch5.MapMode = "FlatFace"
sketch5.AttachmentOffset = App.Placement(App.Vector(0, 0, -140), App.Rotation())
add_polygon(sketch5, [(495, 12.5), (502.25, 12.5), (502.25, 7), (507.75, 7), (507.75, 12.5), (515, 12.5), (515, 5.25), (509.5, 5.25), (509.5, -0.25), (515, -0.25), (515, -7.5), (507.75, -7.5), (507.75, -2), (502.25, -2), (502.25, -7.5), (495, -7.5), (495, -0.25), (500.5, -0.25), (500.5, 5.25), (495, 5.25)])  # lines 0-19
add_polygon(sketch5, [(5, 12.5), (5, 5.25), (-0.5, 5.25), (-0.5, -0.25), (5, -0.25), (5, -7.5), (-2.25, -7.5), (-2.25, -2), (-7.75, -2), (-7.75, -7.5), (-15, -7.5), (-15, -0.25), (-9.5, -0.25), (-9.5, 5.25), (-15, 5.25), (-15, 12.5), (-7.75, 12.5), (-7.75, 7), (-2.25, 7), (-2.25, 12.5)])  # lines 20-39
sketch5.addConstraint(Sketcher.Constraint("Horizontal", 0))
sketch5.addConstraint(Sketcher.Constraint("Vertical", 1))
sketch5.addConstraint(Sketcher.Constraint("Horizontal", 2))
sketch5.addConstraint(Sketcher.Constraint("Vertical", 3))
sketch5.addConstraint(Sketcher.Constraint("Horizontal", 4))
sketch5.addConstraint(Sketcher.Constraint("Vertical", 5))
sketch5.addConstraint(Sketcher.Constraint("Horizontal", 6))
sketch5.addConstraint(Sketcher.Constraint("Vertical", 7))
sketch5.addConstraint(Sketcher.Constraint("Horizontal", 8))
sketch5.addConstraint(Sketcher.Constraint("Vertical", 9))
sketch5.addConstraint(Sketcher.Constraint("Horizontal", 10))
sketch5.addConstraint(Sketcher.Constraint("Vertical", 11))
sketch5.addConstraint(Sketcher.Constraint("Horizontal", 12))
sketch5.addConstraint(Sketcher.Constraint("Vertical", 13))
sketch5.addConstraint(Sketcher.Constraint("Horizontal", 14))
sketch5.addConstraint(Sketcher.Constraint("Vertical", 15))
sketch5.addConstraint(Sketcher.Constraint("Horizontal", 16))
sketch5.addConstraint(Sketcher.Constraint("Vertical", 17))
sketch5.addConstraint(Sketcher.Constraint("Horizontal", 18))
sketch5.addConstraint(Sketcher.Constraint("Vertical", 19))
sketch5.addConstraint(Sketcher.Constraint("Vertical", 20))
sketch5.addConstraint(Sketcher.Constraint("Horizontal", 21))
sketch5.addConstraint(Sketcher.Constraint("Vertical", 22))
sketch5.addConstraint(Sketcher.Constraint("Horizontal", 23))
sketch5.addConstraint(Sketcher.Constraint("Vertical", 24))
sketch5.addConstraint(Sketcher.Constraint("Horizontal", 25))
sketch5.addConstraint(Sketcher.Constraint("Vertical", 26))
sketch5.addConstraint(Sketcher.Constraint("Horizontal", 27))
sketch5.addConstraint(Sketcher.Constraint("Vertical", 28))
sketch5.addConstraint(Sketcher.Constraint("Horizontal", 29))
sketch5.addConstraint(Sketcher.Constraint("Vertical", 30))
sketch5.addConstraint(Sketcher.Constraint("Horizontal", 31))
sketch5.addConstraint(Sketcher.Constraint("Vertical", 32))
sketch5.addConstraint(Sketcher.Constraint("Horizontal", 33))
sketch5.addConstraint(Sketcher.Constraint("Vertical", 34))
sketch5.addConstraint(Sketcher.Constraint("Horizontal", 35))
sketch5.addConstraint(Sketcher.Constraint("Vertical", 36))
sketch5.addConstraint(Sketcher.Constraint("Horizontal", 37))
sketch5.addConstraint(Sketcher.Constraint("Vertical", 38))
sketch5.addConstraint(Sketcher.Constraint("Horizontal", 39))
sketch5.addConstraint(Sketcher.Constraint("Horizontal", 0, 2, 3, 2))
sketch5.addConstraint(Sketcher.Constraint("Horizontal", 10, 2, 13, 2))
sketch5.addConstraint(Sketcher.Constraint("Horizontal", 8, 2, 15, 2))
sketch5.addConstraint(Sketcher.Constraint("Horizontal", 6, 2, 17, 2))
sketch5.addConstraint(Sketcher.Constraint("Horizontal", 18, 2, 20, 2))
sketch5.addConstraint(Sketcher.Constraint("Horizontal", 16, 2, 22, 2))
sketch5.addConstraint(Sketcher.Constraint("Horizontal", 14, 2, 24, 2))
sketch5.addConstraint(Sketcher.Constraint("Horizontal", 12, 2, 26, 2))
sketch5.addConstraint(Sketcher.Constraint("Horizontal", 25, 2, 28, 2))
sketch5.addConstraint(Sketcher.Constraint("Horizontal", 23, 2, 30, 2))
sketch5.addConstraint(Sketcher.Constraint("Horizontal", 21, 2, 32, 2))
sketch5.addConstraint(Sketcher.Constraint("Horizontal", 19, 2, 34, 2))
sketch5.addConstraint(Sketcher.Constraint("Horizontal", 2, 2, 36, 2))
sketch5.addConstraint(Sketcher.Constraint("Horizontal", 35, 2, 38, 2))
sketch5.addConstraint(Sketcher.Constraint("Vertical", 5, 2, 8, 2))
sketch5.addConstraint(Sketcher.Constraint("Vertical", 3, 2, 10, 2))
sketch5.addConstraint(Sketcher.Constraint("Vertical", 1, 2, 12, 2))
sketch5.addConstraint(Sketcher.Constraint("Vertical", 15, 2, 18, 2))
sketch5.addConstraint(Sketcher.Constraint("Vertical", 20, 2, 23, 2))
sketch5.addConstraint(Sketcher.Constraint("Vertical", 30, 2, 33, 2))
sketch5.addConstraint(Sketcher.Constraint("Vertical", 28, 2, 35, 2))
sketch5.addConstraint(Sketcher.Constraint("Vertical", 26, 2, 37, 2))
sketch5.addConstraint(Sketcher.Constraint("Equal", 0, 4))
sketch5.addConstraint(Sketcher.Constraint("Equal", 2, 6))
sketch5.addConstraint(Sketcher.Constraint("Equal", 12, 16))
sketch5.addConstraint(Sketcher.Constraint("Equal", 18, 21))
sketch5.addConstraint(Sketcher.Constraint("Equal", 14, 25))
sketch5.addConstraint(Sketcher.Constraint("Equal", 23, 27))
sketch5.addConstraint(Sketcher.Constraint("Equal", 25, 29))
sketch5.addConstraint(Sketcher.Constraint("Equal", 27, 31))
sketch5.addConstraint(Sketcher.Constraint("Equal", 37, 1))
sketch5.addConstraint(Sketcher.Constraint("Equal", 39, 5))
sketch5.addConstraint(Sketcher.Constraint("Equal", 3, 7))
sketch5.addConstraint(Sketcher.Constraint("Equal", 5, 9))
sketch5.addConstraint(Sketcher.Constraint("Equal", 7, 11))
sketch5.addConstraint(Sketcher.Constraint("DistanceX", 2, 1, 2, 2, 5.5))
sketch5.addConstraint(Sketcher.Constraint("DistanceY", -1, 1, 1, 2, 7.0))
sketch5.addConstraint(Sketcher.Constraint("DistanceX", -1, 1, 4, 2, 515.0))
sketch5.addConstraint(Sketcher.Constraint("DistanceY", 11, 2, -1, 1, 2.0))
sketch5.addConstraint(Sketcher.Constraint("DistanceX", -1, 1, 20, 2, 5.0))
pad5 = doc.addObject("PartDesign::Pad", "Pad004")
body.addObject(pad5)
pad5.Profile = sketch5
pad5.Length = 110
pad5.Reversed = True

# Sketch on XZ plane
sketch6 = doc.addObject("Sketcher::SketchObject", "Sketch005")
body.addObject(sketch6)
sketch6.AttachmentSupport = (doc.XZ_Plane, [""])
sketch6.MapMode = "FlatFace"
sketch6.AttachmentOffset = App.Placement(App.Vector(0, 0, -12.5), App.Rotation())
add_polygon(sketch6, [(252.75, 15), (260, 15), (260, 7.75), (254.5, 7.75), (254.5, 2.25), (260, 2.25), (260, -5), (252.75, -5), (252.75, 0.5), (247.25, 0.5), (247.25, -5), (240, -5), (240, 2.25), (245.5, 2.25), (245.5, 7.75), (240, 7.75), (240, 15), (247.25, 15), (247.25, 9.5), (252.75, 9.5)])  # lines 0-19
sketch6.addConstraint(Sketcher.Constraint("Horizontal", 0))
sketch6.addConstraint(Sketcher.Constraint("Vertical", 1))
sketch6.addConstraint(Sketcher.Constraint("Horizontal", 2))
sketch6.addConstraint(Sketcher.Constraint("Vertical", 3))
sketch6.addConstraint(Sketcher.Constraint("Horizontal", 4))
sketch6.addConstraint(Sketcher.Constraint("Vertical", 5))
sketch6.addConstraint(Sketcher.Constraint("Horizontal", 6))
sketch6.addConstraint(Sketcher.Constraint("Vertical", 7))
sketch6.addConstraint(Sketcher.Constraint("Horizontal", 8))
sketch6.addConstraint(Sketcher.Constraint("Vertical", 9))
sketch6.addConstraint(Sketcher.Constraint("Horizontal", 10))
sketch6.addConstraint(Sketcher.Constraint("Vertical", 11))
sketch6.addConstraint(Sketcher.Constraint("Horizontal", 12))
sketch6.addConstraint(Sketcher.Constraint("Vertical", 13))
sketch6.addConstraint(Sketcher.Constraint("Horizontal", 14))
sketch6.addConstraint(Sketcher.Constraint("Vertical", 15))
sketch6.addConstraint(Sketcher.Constraint("Horizontal", 16))
sketch6.addConstraint(Sketcher.Constraint("Vertical", 17))
sketch6.addConstraint(Sketcher.Constraint("Horizontal", 18))
sketch6.addConstraint(Sketcher.Constraint("Vertical", 19))
sketch6.addConstraint(Sketcher.Constraint("Horizontal", 6, 2, 9, 2))
sketch6.addConstraint(Sketcher.Constraint("Horizontal", 4, 2, 11, 2))
sketch6.addConstraint(Sketcher.Constraint("Horizontal", 2, 2, 13, 2))
sketch6.addConstraint(Sketcher.Constraint("Horizontal", 0, 2, 15, 2))
sketch6.addConstraint(Sketcher.Constraint("Vertical", 1, 2, 4, 2))
sketch6.addConstraint(Sketcher.Constraint("Vertical", 11, 2, 14, 2))
sketch6.addConstraint(Sketcher.Constraint("Vertical", 9, 2, 16, 2))
sketch6.addConstraint(Sketcher.Constraint("Vertical", 7, 2, 18, 2))
sketch6.addConstraint(Sketcher.Constraint("Equal", 4, 8))
sketch6.addConstraint(Sketcher.Constraint("Equal", 6, 10))
sketch6.addConstraint(Sketcher.Constraint("Equal", 8, 12))
sketch6.addConstraint(Sketcher.Constraint("Equal", 16, 1))
sketch6.addConstraint(Sketcher.Constraint("Equal", 18, 3))
sketch6.addConstraint(Sketcher.Constraint("Equal", 1, 5))
sketch6.addConstraint(Sketcher.Constraint("Equal", 3, 7))
sketch6.addConstraint(Sketcher.Constraint("Equal", 13, 17))
sketch6.addConstraint(Sketcher.Constraint("DistanceX", 2, 2, 2, 1, 5.5))
sketch6.addConstraint(Sketcher.Constraint("DistanceY", 5, 2, 0, 2, 20.0))
sketch6.addConstraint(Sketcher.Constraint("DistanceX", -1, 1, 0, 2, 260.0))
sketch6.addConstraint(Sketcher.Constraint("DistanceY", -1, 1, 0, 2, 15.0))
pad6 = doc.addObject("PartDesign::Pad", "Pad005")
body.addObject(pad6)
pad6.Profile = sketch6
pad6.Length = 300
pad6.Reversed = True

doc.recompute()
